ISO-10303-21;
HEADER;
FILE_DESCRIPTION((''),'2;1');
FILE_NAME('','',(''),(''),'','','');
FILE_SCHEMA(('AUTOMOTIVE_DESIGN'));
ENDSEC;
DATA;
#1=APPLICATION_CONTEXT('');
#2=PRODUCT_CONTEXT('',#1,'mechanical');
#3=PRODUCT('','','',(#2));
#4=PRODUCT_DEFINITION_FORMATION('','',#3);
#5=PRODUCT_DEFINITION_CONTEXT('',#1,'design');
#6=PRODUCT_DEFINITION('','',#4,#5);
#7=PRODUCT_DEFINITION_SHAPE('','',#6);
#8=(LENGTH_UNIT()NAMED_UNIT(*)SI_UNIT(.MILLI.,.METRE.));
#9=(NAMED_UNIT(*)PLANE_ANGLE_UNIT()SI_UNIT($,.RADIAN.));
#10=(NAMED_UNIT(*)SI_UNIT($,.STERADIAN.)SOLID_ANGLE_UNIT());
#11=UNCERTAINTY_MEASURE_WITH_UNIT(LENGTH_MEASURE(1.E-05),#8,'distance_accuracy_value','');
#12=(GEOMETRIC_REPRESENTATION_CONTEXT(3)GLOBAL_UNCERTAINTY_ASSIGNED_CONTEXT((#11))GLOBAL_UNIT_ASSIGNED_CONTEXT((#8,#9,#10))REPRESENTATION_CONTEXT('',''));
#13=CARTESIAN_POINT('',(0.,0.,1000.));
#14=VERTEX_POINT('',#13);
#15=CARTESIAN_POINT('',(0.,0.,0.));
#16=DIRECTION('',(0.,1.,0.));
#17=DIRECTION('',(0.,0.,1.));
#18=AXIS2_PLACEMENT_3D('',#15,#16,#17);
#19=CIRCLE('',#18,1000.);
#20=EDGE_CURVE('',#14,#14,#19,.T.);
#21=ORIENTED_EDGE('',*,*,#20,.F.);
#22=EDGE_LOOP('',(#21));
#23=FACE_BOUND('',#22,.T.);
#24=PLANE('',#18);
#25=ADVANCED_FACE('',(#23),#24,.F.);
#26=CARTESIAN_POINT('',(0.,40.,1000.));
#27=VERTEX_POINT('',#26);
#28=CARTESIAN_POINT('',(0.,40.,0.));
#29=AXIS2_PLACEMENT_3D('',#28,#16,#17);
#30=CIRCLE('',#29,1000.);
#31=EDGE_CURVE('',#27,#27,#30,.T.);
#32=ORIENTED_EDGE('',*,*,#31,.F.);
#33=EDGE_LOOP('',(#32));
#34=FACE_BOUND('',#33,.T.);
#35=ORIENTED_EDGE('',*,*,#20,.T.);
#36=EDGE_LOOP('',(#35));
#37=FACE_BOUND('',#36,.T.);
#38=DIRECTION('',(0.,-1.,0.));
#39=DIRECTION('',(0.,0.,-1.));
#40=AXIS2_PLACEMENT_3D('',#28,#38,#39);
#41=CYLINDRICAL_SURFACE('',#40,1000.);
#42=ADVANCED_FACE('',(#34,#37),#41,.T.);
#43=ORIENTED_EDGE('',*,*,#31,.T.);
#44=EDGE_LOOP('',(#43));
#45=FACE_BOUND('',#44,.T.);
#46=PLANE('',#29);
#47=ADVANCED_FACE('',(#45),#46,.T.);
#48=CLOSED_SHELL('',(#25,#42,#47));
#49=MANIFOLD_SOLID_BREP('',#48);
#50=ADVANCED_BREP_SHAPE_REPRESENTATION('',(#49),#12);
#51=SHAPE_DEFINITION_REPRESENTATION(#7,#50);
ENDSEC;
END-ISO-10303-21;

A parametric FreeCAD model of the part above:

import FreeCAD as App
import Part
import Sketcher
Q = App.Units.Quantity

doc = App.newDocument("Part")
body = doc.addObject("PartDesign::Body", "Body")

# Sketch on XZ plane
sketch1 = doc.addObject("Sketcher::SketchObject", "Sketch")
body.addObject(sketch1)
sketch1.AttachmentSupport = (doc.XZ_Plane, [""])
sketch1.MapMode = "FlatFace"
sketch1.addGeometry(Part.Circle(App.Vector(0, 0, 0), App.Vector(0, 0, 1), 1000), False)
sketch1.addConstraint([
    Sketcher.Constraint("Coincident", 0, 3, -1, 1),
    Sketcher.Constraint("Diameter", 0, Q("2000 mm")),
])
pad1 = doc.addObject("PartDesign::Pad", "Pad")
body.addObject(pad1)
pad1.Profile = sketch1
pad1.Length = 40
pad1.Reversed = True

doc.recompute()
